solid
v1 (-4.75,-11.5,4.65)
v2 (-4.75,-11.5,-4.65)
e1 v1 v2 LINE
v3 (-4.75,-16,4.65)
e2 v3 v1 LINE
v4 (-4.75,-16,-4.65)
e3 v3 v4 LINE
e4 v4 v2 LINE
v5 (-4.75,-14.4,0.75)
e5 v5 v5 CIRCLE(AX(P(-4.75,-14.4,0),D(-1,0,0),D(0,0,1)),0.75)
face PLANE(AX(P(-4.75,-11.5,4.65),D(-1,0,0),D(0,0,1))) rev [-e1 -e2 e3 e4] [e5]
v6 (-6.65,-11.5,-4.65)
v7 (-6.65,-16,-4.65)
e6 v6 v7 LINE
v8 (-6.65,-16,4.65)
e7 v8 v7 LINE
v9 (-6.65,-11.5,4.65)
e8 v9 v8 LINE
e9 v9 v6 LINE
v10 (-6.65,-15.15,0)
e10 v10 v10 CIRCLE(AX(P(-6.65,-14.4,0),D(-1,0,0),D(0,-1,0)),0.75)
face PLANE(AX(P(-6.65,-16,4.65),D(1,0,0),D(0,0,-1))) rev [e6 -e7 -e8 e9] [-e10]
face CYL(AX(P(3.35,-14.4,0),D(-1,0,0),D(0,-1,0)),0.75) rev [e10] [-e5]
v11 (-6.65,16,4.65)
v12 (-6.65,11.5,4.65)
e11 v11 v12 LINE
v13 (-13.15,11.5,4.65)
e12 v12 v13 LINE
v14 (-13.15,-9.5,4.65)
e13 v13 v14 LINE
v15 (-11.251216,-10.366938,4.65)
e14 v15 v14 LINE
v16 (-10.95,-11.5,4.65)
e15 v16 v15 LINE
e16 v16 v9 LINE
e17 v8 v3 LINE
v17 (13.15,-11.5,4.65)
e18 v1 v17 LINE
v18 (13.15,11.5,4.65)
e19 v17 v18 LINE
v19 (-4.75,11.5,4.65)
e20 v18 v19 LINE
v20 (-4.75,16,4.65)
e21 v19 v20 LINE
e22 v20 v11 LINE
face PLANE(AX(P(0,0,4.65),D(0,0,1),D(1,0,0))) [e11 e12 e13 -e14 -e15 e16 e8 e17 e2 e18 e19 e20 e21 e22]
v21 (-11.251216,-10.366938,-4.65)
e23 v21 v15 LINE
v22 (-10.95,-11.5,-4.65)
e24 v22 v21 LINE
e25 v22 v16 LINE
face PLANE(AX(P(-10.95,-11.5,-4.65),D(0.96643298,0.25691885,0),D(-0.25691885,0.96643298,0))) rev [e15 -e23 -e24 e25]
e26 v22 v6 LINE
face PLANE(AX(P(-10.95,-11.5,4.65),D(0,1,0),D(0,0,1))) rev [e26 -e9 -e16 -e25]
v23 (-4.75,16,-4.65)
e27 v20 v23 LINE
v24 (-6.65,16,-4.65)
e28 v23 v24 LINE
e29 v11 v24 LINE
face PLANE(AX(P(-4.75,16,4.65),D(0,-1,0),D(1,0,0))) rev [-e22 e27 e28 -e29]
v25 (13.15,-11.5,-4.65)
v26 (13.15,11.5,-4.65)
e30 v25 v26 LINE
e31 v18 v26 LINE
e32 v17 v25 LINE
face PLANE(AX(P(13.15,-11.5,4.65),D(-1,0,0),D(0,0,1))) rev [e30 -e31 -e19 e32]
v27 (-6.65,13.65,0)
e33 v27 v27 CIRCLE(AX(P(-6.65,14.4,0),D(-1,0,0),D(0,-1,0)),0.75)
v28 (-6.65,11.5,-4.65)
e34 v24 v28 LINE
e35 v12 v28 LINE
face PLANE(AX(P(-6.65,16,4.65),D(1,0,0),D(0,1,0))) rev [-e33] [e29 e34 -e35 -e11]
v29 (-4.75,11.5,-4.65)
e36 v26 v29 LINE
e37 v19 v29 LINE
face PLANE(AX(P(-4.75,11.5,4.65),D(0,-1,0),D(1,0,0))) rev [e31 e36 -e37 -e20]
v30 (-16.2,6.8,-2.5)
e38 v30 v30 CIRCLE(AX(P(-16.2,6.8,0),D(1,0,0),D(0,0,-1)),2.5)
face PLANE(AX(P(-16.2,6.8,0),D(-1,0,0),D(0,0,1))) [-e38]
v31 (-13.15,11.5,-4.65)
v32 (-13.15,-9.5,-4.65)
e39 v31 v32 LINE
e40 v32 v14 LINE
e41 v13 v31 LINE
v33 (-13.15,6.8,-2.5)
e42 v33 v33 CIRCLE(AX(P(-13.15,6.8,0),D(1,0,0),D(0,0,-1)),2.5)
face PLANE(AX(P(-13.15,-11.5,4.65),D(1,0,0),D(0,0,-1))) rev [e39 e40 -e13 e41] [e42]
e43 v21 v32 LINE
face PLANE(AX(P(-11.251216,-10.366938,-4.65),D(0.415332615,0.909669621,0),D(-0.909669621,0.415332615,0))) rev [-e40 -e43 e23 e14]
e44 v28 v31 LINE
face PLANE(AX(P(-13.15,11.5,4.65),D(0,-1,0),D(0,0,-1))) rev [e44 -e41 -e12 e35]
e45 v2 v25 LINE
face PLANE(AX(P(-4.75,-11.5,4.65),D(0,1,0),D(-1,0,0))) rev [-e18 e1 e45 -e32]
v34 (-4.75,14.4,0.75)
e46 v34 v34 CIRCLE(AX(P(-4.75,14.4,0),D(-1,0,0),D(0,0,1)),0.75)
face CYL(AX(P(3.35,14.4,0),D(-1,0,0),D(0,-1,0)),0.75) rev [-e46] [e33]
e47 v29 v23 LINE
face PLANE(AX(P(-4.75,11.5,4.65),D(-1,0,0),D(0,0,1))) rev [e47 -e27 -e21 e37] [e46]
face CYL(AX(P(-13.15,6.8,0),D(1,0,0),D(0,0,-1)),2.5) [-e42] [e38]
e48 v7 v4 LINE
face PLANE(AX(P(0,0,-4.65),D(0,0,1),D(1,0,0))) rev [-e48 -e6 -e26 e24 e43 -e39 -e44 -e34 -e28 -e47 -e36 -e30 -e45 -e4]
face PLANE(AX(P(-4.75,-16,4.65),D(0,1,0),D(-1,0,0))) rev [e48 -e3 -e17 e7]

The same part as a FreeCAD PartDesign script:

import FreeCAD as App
import Part
import Sketcher
from FreeCAD import Vector

doc = App.newDocument("Part")
params = doc.addObject("Spreadsheet::Sheet", "Params")
for row, (alias, value) in enumerate([
    ("sketch1_height", "23 mm"),
    ("sketch1_width", "1.9 mm"),
    ("sketch1_width2", "6.5 mm"),
    ("sketch1_width3", "17.9 mm"),
    ("sketch1_height2", "4.5 mm"),
    ("pad1_length", "9.3 mm"),
    ("sketch2_height", "2 mm"),
    ("sketch2_width", "2.2 mm"),
    ("sketch3_height", "2.5 mm"),
    ("sketch3_width", "3.05 mm"),
    ("revolution_angle", "360 deg"),
    ("sketch4_diameter", "1.5 mm"),
    ("pocket2_length", "10 mm"),
], start=1):
    params.set(f"A{row}", alias)
    params.set(f"B{row}", "=" + value)
    params.setAlias(f"B{row}", alias)

body = doc.addObject("PartDesign::Body", "Body")

# Sketch on XY plane
sketch1 = doc.addObject("Sketcher::SketchObject", "Sketch")
body.addObject(sketch1)
sketch1.AttachmentSupport = (doc.XY_Plane, [""])
sketch1.MapMode = "FlatFace"
sketch1.addGeometry([
    Part.LineSegment(Vector(-4.8, 11.5, 0), Vector(-4.8, 16, 0)),  # 0
    Part.LineSegment(Vector(-4.8, 16, 0), Vector(-6.7, 16, 0)),  # 1
    Part.LineSegment(Vector(-6.7, 16, 0), Vector(-6.7, 11.5, 0)),  # 2
    Part.LineSegment(Vector(-6.7, 11.5, 0), Vector(-13.2, 11.5, 0)),  # 3
    Part.LineSegment(Vector(-13.2, 11.5, 0), Vector(-13.2, -11.5, 0)),  # 4
    Part.LineSegment(Vector(-13.2, -11.5, 0), Vector(-6.7, -11.5, 0)),  # 5
    Part.LineSegment(Vector(-6.7, -11.5, 0), Vector(-6.7, -16, 0)),  # 6
    Part.LineSegment(Vector(-6.7, -16, 0), Vector(-4.8, -16, 0)),  # 7
    Part.LineSegment(Vector(-4.8, -16, 0), Vector(-4.8, -11.5, 0)),  # 8
    Part.LineSegment(Vector(-4.8, -11.5, 0), Vector(13.2, -11.5, 0)),  # 9
    Part.LineSegment(Vector(13.2, -11.5, 0), Vector(13.2, 11.5, 0)),  # 10
    Part.LineSegment(Vector(13.2, 11.5, 0), Vector(-4.8, 11.5, 0)),  # 11
], False)
sketch1.addConstraint([
    Sketcher.Constraint("Coincident", 0, 2, 1, 1),
    Sketcher.Constraint("Coincident", 1, 2, 2, 1),
    Sketcher.Constraint("Coincident", 2, 2, 3, 1),
    Sketcher.Constraint("Coincident", 3, 2, 4, 1),
    Sketcher.Constraint("Coincident", 4, 2, 5, 1),
    Sketcher.Constraint("Coincident", 5, 2, 6, 1),
    Sketcher.Constraint("Coincident", 6, 2, 7, 1),
    Sketcher.Constraint("Coincident", 7, 2, 8, 1),
    Sketcher.Constraint("Coincident", 8, 2, 9, 1),
    Sketcher.Constraint("Coincident", 9, 2, 10, 1),
    Sketcher.Constraint("Coincident", 10, 2, 11, 1),
    Sketcher.Constraint("Coincident", 11, 2, 0, 1),
    Sketcher.Constraint("Vertical", 0),
    Sketcher.Constraint("Horizontal", 1),
    Sketcher.Constraint("Vertical", 2),
    Sketcher.Constraint("Horizontal", 3),
    Sketcher.Constraint("Vertical", 4),
    Sketcher.Constraint("Horizontal", 5),
    Sketcher.Constraint("Vertical", 6),
    Sketcher.Constraint("Horizontal", 7),
    Sketcher.Constraint("Vertical", 8),
    Sketcher.Constraint("Horizontal", 9),
    Sketcher.Constraint("Vertical", 10),
    Sketcher.Constraint("Horizontal", 11),
    Sketcher.Constraint("Symmetric", 3, 2, 9, 2, -1, 1),
    Sketcher.Constraint("Symmetric", 2, 2, 5, 2, -1),
    Sketcher.Constraint("Symmetric", 0, 2, 7, 2, -1),
    Sketcher.Constraint("Horizontal", 3, 2, 10, 2),
    Sketcher.Constraint("DistanceY", 4, 2, 4, 1, 23.0),
    Sketcher.Constraint("DistanceX", 1, 2, 1, 1, 1.9),
    Sketcher.Constraint("DistanceX", 3, 2, 3, 1, 6.5),
    Sketcher.Constraint("DistanceX", 9, 1, 9, 2, 17.9),
    Sketcher.Constraint("DistanceY", 0, 1, 0, 2, 4.5),
])
sketch1.setExpression("Constraints[28]", "Params.sketch1_height")
sketch1.setExpression("Constraints[29]", "Params.sketch1_width")
sketch1.setExpression("Constraints[30]", "Params.sketch1_width2")
sketch1.setExpression("Constraints[31]", "Params.sketch1_width3")
sketch1.setExpression("Constraints[32]", "Params.sketch1_height2")
pad1 = doc.addObject("PartDesign::Pad", "Pad")
body.addObject(pad1)
pad1.Profile = sketch1
pad1.setExpression("Length", "Params.pad1_length")
pad1.Midplane = True

# Sketch on XY plane
sketch2 = doc.addObject("Sketcher::SketchObject", "Sketch001")
body.addObject(sketch2)
sketch2.AttachmentSupport = (doc.XY_Plane, [""])
sketch2.MapMode = "FlatFace"
sketch2.addGeometry([
    Part.LineSegment(Vector(-11.3, -10.4, 0), Vector(-13.2, -9.5, 0)),
    Part.LineSegment(Vector(-13.2, -9.5, 0), Vector(-13.2, -11.5, 0)),
    Part.LineSegment(Vector(-13.2, -11.5, 0), Vector(-10.9, -11.5, 0)),
    Part.LineSegment(Vector(-10.9, -11.5, 0), Vector(-11.3, -10.4, 0)),
], False)
sketch2.addConstraint([
    Sketcher.Constraint("Coincident", 0, 2, 1, 1),
    Sketcher.Constraint("Coincident", 1, 2, 2, 1),
    Sketcher.Constraint("Coincident", 2, 2, 3, 1),
    Sketcher.Constraint("Coincident", 3, 2, 0, 1),
    Sketcher.Constraint("Vertical", 1),
    Sketcher.Constraint("Horizontal", 2),
    Sketcher.Constraint("DistanceY", 1, 2, 1, 1, 2.0),
    Sketcher.Constraint("DistanceX", 2, 1, 2, 2, 2.2),
    Sketcher.Constraint("DistanceY", 0, 2, -1, 1, 9.5),
    Sketcher.Constraint("DistanceX", 0, 2, -1, 1, 13.15),
    Sketcher.Constraint("Distance", 0, 2.087334),
    Sketcher.Constraint("Distance", 3, 1.172417),
])
sketch2.setExpression("Constraints[6]", "Params.sketch2_height")
sketch2.setExpression("Constraints[7]", "Params.sketch2_width")
pocket1 = doc.addObject("PartDesign::Pocket", "Pocket")
body.addObject(pocket1)
pocket1.Profile = sketch2
pocket1.Type = "ThroughAll"
pocket1.Midplane = True

# Sketch on XY plane
sketch3 = doc.addObject("Sketcher::SketchObject", "Sketch002")
body.addObject(sketch3)
sketch3.AttachmentSupport = (doc.XY_Plane, [""])
sketch3.MapMode = "FlatFace"
sketch3.addGeometry([
    Part.LineSegment(Vector(-16.2, 9.3, 0), Vector(-16.2, 6.8, 0)),
    Part.LineSegment(Vector(-16.2, 6.8, 0), Vector(-13.2, 6.8, 0)),
    Part.LineSegment(Vector(-13.2, 6.8, 0), Vector(-13.2, 9.3, 0)),
    Part.LineSegment(Vector(-13.2, 9.3, 0), Vector(-16.2, 9.3, 0)),
], False)
sketch3.addGeometry(Part.LineSegment(Vector(-13.2, 6.8, 0), Vector(-16.2, 6.8, 0)), True)  # axis
sketch3.addConstraint([
    Sketcher.Constraint("Coincident", 0, 2, 1, 1),
    Sketcher.Constraint("Coincident", 1, 2, 2, 1),
    Sketcher.Constraint("Coincident", 2, 2, 3, 1),
    Sketcher.Constraint("Coincident", 3, 2, 0, 1),
    Sketcher.Constraint("Vertical", 0),
    Sketcher.Constraint("Horizontal", 1),
    Sketcher.Constraint("Vertical", 2),
    Sketcher.Constraint("Horizontal", 3),
    Sketcher.Constraint("Horizontal", 4),
    Sketcher.Constraint("Coincident", 4, 1, 1, 2),
    Sketcher.Constraint("Vertical", 3, 2, 4, 2),
    Sketcher.Constraint("DistanceY", 0, 2, 0, 1, 2.5),
    Sketcher.Constraint("DistanceX", 1, 1, 1, 2, 3.05),
    Sketcher.Constraint("DistanceX", 0, 2, -1, 1, 16.2),
    Sketcher.Constraint("DistanceY", -1, 1, 0, 2, 6.8),
])
sketch3.setExpression("Constraints[11]", "Params.sketch3_height")
sketch3.setExpression("Constraints[12]", "Params.sketch3_width")
revolution = doc.addObject("PartDesign::Revolution", "Revolution")
body.addObject(revolution)
revolution.Profile = sketch3
revolution.ReferenceAxis = (sketch3, ["Axis0"])
revolution.setExpression("Angle", "Params.revolution_angle")

# Sketch on YZ plane
sketch4 = doc.addObject("Sketcher::SketchObject", "Sketch003")
body.addObject(sketch4)
sketch4.AttachmentSupport = (doc.YZ_Plane, [""])
sketch4.MapMode = "FlatFace"
sketch4.AttachmentOffset = App.Placement(Vector(0, 0, -6.65), App.Rotation())
sketch4.addGeometry([
    Part.Circle(Vector(14.4, 0, 0), Vector(0, 0, 1), 0.8),
    Part.Circle(Vector(-14.4, 0, 0), Vector(0, 0, 1), 0.8),
], False)
sketch4.addConstraint([
    Sketcher.Constraint("Equal", 0, 1),
    Sketcher.Constraint("Symmetric", 0, 3, 1, 3, -1, 1),
    Sketcher.Constraint("PointOnObject", 0, 3, -1),
    Sketcher.Constraint("Diameter", 0, 1.5),
    Sketcher.Constraint("DistanceX", -1, 1, 0, 3, 14.4),
])
sketch4.setExpression("Constraints[3]", "Params.sketch4_diameter")
pocket2 = doc.addObject("PartDesign::Pocket", "Pocket001")
body.addObject(pocket2)
pocket2.Profile = sketch4
pocket2.setExpression("Length", "Params.pocket2_length")
pocket2.Reversed = True

doc.recompute()
